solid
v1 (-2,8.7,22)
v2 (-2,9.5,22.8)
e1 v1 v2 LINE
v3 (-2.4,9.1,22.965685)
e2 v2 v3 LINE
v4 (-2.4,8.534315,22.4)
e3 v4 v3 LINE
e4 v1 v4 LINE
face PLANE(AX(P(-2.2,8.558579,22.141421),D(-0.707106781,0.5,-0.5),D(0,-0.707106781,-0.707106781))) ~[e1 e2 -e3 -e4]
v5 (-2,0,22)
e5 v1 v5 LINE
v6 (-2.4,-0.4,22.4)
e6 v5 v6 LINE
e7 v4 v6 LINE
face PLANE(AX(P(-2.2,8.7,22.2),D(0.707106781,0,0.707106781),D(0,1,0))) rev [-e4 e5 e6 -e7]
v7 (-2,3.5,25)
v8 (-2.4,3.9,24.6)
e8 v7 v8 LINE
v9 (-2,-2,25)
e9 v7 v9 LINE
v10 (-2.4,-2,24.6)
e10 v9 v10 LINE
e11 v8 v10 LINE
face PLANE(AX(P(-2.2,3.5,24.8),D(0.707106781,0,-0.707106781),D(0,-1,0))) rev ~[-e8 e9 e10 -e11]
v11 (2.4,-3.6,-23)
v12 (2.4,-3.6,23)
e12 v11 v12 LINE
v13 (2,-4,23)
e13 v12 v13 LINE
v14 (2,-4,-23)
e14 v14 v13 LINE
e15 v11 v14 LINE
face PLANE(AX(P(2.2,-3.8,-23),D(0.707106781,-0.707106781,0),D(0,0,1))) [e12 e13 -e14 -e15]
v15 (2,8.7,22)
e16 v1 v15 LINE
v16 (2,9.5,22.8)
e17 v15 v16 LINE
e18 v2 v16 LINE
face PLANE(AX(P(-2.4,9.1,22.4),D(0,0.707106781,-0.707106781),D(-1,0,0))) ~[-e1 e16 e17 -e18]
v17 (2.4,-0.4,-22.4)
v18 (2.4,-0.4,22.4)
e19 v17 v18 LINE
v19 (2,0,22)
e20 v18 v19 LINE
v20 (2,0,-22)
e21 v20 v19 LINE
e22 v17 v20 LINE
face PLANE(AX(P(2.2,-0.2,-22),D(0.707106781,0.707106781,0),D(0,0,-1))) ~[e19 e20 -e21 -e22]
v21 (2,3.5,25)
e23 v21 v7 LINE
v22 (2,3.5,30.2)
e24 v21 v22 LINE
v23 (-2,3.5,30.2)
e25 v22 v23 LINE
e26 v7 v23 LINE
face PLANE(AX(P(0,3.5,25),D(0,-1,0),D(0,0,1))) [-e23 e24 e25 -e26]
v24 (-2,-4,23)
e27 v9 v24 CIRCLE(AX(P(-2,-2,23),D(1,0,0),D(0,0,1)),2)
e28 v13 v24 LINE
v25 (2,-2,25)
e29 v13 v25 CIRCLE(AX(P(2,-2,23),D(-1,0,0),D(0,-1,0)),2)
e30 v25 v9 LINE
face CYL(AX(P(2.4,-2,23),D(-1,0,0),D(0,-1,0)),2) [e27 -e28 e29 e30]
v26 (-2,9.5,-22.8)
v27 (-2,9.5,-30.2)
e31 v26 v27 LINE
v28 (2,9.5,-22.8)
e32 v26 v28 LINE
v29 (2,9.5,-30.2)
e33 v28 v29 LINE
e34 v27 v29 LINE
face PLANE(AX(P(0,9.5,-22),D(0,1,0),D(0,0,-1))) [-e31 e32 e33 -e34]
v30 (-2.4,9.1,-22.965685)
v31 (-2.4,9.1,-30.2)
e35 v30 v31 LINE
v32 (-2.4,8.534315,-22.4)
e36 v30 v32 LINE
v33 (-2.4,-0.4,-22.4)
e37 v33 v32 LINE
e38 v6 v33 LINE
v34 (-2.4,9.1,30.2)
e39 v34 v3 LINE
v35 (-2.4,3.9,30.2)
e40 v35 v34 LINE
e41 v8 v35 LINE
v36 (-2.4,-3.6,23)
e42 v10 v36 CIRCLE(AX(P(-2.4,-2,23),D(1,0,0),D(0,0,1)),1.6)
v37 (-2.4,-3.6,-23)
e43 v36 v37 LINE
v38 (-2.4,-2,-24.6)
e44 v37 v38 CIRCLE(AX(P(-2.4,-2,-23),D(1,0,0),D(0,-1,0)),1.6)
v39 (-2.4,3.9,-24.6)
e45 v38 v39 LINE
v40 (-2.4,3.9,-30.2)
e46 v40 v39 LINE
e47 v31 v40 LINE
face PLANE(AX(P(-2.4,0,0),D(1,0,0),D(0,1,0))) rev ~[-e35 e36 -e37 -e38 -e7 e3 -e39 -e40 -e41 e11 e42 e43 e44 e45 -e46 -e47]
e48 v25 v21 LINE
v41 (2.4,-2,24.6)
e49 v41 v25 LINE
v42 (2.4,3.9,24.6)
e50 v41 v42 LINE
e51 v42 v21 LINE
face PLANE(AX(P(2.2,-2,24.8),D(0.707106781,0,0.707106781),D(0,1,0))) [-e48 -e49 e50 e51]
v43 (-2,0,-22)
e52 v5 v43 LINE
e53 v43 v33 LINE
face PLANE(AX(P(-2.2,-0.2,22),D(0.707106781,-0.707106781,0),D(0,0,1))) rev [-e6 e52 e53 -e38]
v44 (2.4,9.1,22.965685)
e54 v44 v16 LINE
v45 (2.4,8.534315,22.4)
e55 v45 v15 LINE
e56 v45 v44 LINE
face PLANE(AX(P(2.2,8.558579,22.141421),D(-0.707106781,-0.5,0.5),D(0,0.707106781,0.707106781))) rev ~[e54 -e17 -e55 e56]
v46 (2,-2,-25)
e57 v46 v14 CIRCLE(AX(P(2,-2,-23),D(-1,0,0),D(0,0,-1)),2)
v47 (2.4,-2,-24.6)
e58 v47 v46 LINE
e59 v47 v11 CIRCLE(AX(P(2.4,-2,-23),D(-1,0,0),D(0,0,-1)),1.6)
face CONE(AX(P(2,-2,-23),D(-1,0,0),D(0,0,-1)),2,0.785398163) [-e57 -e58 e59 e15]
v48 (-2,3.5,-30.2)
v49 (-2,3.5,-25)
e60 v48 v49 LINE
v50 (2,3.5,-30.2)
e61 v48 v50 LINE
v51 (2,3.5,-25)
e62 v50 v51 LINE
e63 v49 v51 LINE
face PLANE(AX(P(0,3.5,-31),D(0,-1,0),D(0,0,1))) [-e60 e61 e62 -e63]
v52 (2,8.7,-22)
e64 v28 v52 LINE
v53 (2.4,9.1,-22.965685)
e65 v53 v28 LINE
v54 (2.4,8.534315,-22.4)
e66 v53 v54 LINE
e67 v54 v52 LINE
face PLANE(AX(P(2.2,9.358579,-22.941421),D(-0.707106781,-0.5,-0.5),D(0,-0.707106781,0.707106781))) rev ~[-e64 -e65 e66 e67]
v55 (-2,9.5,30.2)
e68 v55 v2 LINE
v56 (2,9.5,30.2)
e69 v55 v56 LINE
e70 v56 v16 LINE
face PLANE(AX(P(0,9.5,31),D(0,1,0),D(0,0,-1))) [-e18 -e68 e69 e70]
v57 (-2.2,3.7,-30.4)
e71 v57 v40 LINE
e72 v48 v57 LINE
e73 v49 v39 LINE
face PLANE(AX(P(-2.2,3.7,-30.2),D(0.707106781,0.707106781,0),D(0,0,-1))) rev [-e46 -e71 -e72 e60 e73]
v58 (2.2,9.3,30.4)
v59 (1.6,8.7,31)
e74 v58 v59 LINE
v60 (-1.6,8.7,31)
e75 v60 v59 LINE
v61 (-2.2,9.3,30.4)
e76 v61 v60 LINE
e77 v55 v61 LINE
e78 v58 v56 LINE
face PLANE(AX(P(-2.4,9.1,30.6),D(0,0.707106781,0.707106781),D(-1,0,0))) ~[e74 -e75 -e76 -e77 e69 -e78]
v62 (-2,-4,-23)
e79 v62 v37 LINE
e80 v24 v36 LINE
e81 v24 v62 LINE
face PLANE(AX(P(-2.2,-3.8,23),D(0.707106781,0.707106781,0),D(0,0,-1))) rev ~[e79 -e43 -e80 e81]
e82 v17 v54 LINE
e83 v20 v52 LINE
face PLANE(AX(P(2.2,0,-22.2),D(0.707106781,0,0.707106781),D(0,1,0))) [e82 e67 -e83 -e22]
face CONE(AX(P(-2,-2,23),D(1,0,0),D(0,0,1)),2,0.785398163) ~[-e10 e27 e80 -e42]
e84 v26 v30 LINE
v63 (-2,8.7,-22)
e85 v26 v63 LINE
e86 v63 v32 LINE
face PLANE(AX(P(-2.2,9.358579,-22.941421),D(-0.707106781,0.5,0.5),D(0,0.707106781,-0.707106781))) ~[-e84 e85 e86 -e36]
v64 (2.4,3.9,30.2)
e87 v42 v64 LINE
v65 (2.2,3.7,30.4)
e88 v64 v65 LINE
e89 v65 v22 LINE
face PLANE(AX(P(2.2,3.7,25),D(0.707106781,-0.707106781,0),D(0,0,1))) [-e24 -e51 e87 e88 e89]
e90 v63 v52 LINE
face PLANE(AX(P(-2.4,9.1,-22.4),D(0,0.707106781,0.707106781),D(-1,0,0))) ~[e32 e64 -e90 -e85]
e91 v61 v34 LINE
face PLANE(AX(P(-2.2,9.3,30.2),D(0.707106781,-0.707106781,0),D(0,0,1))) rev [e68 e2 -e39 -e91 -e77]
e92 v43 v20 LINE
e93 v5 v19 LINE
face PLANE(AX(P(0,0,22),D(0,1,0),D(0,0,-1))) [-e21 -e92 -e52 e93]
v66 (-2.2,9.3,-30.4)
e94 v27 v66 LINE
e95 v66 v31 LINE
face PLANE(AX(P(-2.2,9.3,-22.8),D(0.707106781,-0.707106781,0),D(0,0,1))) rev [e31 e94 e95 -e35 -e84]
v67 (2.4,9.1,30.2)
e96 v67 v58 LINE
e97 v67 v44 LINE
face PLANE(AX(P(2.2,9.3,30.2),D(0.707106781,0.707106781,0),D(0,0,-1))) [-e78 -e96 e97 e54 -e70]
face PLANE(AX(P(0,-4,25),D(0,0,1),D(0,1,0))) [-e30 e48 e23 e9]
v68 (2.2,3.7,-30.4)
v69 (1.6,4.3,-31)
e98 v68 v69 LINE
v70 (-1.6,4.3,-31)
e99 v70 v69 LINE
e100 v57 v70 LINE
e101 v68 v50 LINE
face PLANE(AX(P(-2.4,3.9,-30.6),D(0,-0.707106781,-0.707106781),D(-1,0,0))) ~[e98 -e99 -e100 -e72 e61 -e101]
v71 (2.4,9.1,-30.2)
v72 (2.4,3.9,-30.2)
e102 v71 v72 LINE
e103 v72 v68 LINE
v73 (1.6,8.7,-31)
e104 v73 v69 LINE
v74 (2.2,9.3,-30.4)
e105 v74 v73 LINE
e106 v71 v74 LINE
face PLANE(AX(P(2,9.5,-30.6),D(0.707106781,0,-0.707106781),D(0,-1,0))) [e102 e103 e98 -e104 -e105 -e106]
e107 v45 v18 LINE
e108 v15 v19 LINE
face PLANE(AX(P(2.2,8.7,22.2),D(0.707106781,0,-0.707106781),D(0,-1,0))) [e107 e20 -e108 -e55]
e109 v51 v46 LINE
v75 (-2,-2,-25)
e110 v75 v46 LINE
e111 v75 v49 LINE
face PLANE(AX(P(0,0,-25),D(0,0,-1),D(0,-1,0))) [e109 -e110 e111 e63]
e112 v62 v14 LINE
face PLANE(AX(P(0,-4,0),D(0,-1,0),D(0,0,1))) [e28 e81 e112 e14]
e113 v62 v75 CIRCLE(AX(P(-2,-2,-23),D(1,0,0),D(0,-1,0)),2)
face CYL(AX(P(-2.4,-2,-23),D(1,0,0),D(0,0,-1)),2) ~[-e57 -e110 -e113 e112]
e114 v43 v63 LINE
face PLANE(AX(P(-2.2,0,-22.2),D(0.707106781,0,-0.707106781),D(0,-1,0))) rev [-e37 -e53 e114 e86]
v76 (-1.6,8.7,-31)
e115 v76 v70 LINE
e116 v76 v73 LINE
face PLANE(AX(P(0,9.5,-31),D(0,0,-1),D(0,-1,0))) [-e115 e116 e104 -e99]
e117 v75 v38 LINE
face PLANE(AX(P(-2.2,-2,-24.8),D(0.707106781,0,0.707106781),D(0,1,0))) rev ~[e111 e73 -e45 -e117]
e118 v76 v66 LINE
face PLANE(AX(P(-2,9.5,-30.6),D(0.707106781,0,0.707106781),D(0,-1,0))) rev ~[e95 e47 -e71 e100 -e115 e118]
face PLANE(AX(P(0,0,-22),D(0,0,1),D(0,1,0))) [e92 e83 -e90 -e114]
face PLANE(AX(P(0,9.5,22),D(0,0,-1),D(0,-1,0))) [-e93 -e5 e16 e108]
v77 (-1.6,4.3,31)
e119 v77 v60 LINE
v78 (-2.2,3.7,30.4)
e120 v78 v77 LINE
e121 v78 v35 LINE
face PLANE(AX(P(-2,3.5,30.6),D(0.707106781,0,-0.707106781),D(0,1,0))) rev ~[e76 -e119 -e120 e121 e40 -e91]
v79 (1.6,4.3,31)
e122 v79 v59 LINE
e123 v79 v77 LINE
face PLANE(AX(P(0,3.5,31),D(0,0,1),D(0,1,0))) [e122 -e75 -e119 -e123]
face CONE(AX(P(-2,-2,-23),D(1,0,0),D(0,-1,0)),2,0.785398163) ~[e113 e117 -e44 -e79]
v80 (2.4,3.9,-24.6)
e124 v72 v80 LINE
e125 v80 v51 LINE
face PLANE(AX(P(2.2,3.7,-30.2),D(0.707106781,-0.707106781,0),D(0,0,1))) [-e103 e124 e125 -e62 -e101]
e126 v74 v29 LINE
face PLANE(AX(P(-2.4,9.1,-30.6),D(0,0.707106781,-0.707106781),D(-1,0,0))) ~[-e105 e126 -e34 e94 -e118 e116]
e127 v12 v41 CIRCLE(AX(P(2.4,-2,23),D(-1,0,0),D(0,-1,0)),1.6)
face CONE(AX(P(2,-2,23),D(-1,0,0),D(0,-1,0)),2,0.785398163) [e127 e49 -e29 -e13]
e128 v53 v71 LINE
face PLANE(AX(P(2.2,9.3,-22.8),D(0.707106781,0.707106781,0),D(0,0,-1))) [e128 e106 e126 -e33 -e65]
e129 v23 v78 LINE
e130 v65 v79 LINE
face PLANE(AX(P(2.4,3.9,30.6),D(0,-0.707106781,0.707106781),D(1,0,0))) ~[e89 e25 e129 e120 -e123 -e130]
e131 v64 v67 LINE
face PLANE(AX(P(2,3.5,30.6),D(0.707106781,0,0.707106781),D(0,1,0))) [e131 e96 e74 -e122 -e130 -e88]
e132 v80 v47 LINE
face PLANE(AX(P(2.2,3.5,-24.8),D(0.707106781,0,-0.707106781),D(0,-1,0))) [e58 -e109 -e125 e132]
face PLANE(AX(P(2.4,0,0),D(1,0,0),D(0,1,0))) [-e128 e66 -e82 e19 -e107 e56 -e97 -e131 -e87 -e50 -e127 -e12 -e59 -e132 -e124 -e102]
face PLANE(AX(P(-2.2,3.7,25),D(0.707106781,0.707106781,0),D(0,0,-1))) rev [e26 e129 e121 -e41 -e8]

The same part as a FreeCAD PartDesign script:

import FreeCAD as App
import Part
import Sketcher
Q = App.Units.Quantity


def edges_at(feature, points):
    """Names of the edges that pass closest to the given points."""
    edges = feature.Shape.Edges
    near = lambda p: min(range(len(edges)), key=lambda i: edges[i].distToShape(Part.Vertex(*p))[0])
    return sorted({f"Edge{near(p) + 1}" for p in points})


def add_polygon(sketch, points):
    """Adds a closed chain of lines whose ends are joined by coincident constraints."""
    first, n = sketch.GeometryCount, len(points)
    for a, b in zip(points, points[1:] + points[:1]):
        sketch.addGeometry(Part.LineSegment(App.Vector(*a, 0), App.Vector(*b, 0)), False)
    for i in range(n):
        sketch.addConstraint(Sketcher.Constraint("Coincident", first + i, 2, first + (i + 1) % n, 1))

doc = App.newDocument("Part")
body = doc.addObject("PartDesign::Body", "Body")

# Sketch on YZ plane
sketch1 = body.newObject("Sketcher::SketchObject", "Sketch")
sketch1.AttachmentSupport = (doc.getObject("YZ_Plane"), [""])
sketch1.MapMode = "FlatFace"
add_polygon(sketch1, [(-4, 25), (-4, -25), (3.5, -25), (3.5, -31), (9.5, -31), (9.5, -22), (0, -22), (0, 22), (9.5, 22), (9.5, 31), (3.5, 31), (3.5, 25)])  # lines 0-11
sketch1.addConstraint([
    Sketcher.Constraint("Vertical", 0),
    Sketcher.Constraint("Horizontal", 1),
    Sketcher.Constraint("Vertical", 2),
    Sketcher.Constraint("Horizontal", 3),
    Sketcher.Constraint("Vertical", 4),
    Sketcher.Constraint("Horizontal", 5),
    Sketcher.Constraint("Vertical", 6),
    Sketcher.Constraint("Horizontal", 7),
    Sketcher.Constraint("Vertical", 8),
    Sketcher.Constraint("Horizontal", 9),
    Sketcher.Constraint("Vertical", 10),
    Sketcher.Constraint("Horizontal", 11),
    Sketcher.Constraint("Symmetric", 5, 2, 6, 2, -1, 1),
    Sketcher.Constraint("Symmetric", 3, 2, 8, 2, -1),
    Sketcher.Constraint("Symmetric", 1, 2, 10, 2, -1),
    Sketcher.Constraint("Equal", 9, 2),
    Sketcher.Constraint("DistanceX", 3, 1, 3, 2, Q("6 mm")),
    Sketcher.Constraint("DistanceY", 0, 2, 0, 1, Q("50 mm")),
    Sketcher.Constraint("DistanceX", 0, 2, -1, 1, Q("4 mm")),
    Sketcher.Constraint("DistanceY", 1, 2, 4, 2, Q("3 mm")),
    Sketcher.Constraint("DistanceX", -1, 1, 1, 2, Q("3.5 mm")),
])
pad1 = body.newObject("PartDesign::Pad", "Pad")
pad1.Profile = sketch1
pad1.Length = 4.8
pad1.Midplane = True
doc.recompute()

chamfer = body.newObject("PartDesign::Chamfer", "Chamfer")
chamfer.Base = (pad1, edges_at(pad1, [
    (0, 9.5, 31),
    (0, 3.5, 31),
    (2.4, 6.5, 31),
    (-2.4, 6.5, 31),
    (2.4, 6.5, -31),
    (0, 9.5, -31),
    (-2.4, 6.5, -31),
    (0, 3.5, -31),
    (0, 9.5, 22),
    (0, 9.5, -22),
]))
chamfer.Size = 0.8
doc.recompute()

fillet = body.newObject("PartDesign::Fillet", "Fillet")
fillet.Base = (chamfer, edges_at(chamfer, [(0, -4, 25), (0, -4, -25)]))
fillet.Radius = 2
doc.recompute()

chamfer2 = body.newObject("PartDesign::Chamfer", "Chamfer001")
chamfer2.Base = (fillet, edges_at(fillet, [
    (2.4, -4, 0),
    (2.4, -3.414, -24.414),
    (2.4, 0.75, -25),
    (2.4, 3.5, -27.6),
    (2.4, -3.414, 24.414),
    (2.4, 0.75, 25),
    (2.4, 3.5, 27.6),
    (-2.4, 0.75, 25),
    (-2.4, -3.414, 24.414),
    (-2.4, 3.5, 27.6),
    (-2.4, -4, 0),
    (-2.4, -3.414, -24.414),
    (-2.4, 0.75, -25),
    (-2.4, 3.5, -27.6),
    (2.4, 0, 0),
    (-2.4, 0, 0),
    (2.4, 4.35, -22),
    (2.4, 9.1, -22.4),
    (2.4, 9.5, -26.5),
    (-2.4, 9.5, -26.5),
    (-2.4, 9.1, -22.4),
    (-2.4, 4.35, -22),
    (-2.4, 4.35, 22),
    (-2.4, 9.1, 22.4),
    (-2.4, 9.5, 26.5),
    (2.4, 9.5, 26.5),
    (2.4, 9.1, 22.4),
    (2.4, 4.35, 22),
]))
chamfer2.Size = 0.4

doc.recompute()
